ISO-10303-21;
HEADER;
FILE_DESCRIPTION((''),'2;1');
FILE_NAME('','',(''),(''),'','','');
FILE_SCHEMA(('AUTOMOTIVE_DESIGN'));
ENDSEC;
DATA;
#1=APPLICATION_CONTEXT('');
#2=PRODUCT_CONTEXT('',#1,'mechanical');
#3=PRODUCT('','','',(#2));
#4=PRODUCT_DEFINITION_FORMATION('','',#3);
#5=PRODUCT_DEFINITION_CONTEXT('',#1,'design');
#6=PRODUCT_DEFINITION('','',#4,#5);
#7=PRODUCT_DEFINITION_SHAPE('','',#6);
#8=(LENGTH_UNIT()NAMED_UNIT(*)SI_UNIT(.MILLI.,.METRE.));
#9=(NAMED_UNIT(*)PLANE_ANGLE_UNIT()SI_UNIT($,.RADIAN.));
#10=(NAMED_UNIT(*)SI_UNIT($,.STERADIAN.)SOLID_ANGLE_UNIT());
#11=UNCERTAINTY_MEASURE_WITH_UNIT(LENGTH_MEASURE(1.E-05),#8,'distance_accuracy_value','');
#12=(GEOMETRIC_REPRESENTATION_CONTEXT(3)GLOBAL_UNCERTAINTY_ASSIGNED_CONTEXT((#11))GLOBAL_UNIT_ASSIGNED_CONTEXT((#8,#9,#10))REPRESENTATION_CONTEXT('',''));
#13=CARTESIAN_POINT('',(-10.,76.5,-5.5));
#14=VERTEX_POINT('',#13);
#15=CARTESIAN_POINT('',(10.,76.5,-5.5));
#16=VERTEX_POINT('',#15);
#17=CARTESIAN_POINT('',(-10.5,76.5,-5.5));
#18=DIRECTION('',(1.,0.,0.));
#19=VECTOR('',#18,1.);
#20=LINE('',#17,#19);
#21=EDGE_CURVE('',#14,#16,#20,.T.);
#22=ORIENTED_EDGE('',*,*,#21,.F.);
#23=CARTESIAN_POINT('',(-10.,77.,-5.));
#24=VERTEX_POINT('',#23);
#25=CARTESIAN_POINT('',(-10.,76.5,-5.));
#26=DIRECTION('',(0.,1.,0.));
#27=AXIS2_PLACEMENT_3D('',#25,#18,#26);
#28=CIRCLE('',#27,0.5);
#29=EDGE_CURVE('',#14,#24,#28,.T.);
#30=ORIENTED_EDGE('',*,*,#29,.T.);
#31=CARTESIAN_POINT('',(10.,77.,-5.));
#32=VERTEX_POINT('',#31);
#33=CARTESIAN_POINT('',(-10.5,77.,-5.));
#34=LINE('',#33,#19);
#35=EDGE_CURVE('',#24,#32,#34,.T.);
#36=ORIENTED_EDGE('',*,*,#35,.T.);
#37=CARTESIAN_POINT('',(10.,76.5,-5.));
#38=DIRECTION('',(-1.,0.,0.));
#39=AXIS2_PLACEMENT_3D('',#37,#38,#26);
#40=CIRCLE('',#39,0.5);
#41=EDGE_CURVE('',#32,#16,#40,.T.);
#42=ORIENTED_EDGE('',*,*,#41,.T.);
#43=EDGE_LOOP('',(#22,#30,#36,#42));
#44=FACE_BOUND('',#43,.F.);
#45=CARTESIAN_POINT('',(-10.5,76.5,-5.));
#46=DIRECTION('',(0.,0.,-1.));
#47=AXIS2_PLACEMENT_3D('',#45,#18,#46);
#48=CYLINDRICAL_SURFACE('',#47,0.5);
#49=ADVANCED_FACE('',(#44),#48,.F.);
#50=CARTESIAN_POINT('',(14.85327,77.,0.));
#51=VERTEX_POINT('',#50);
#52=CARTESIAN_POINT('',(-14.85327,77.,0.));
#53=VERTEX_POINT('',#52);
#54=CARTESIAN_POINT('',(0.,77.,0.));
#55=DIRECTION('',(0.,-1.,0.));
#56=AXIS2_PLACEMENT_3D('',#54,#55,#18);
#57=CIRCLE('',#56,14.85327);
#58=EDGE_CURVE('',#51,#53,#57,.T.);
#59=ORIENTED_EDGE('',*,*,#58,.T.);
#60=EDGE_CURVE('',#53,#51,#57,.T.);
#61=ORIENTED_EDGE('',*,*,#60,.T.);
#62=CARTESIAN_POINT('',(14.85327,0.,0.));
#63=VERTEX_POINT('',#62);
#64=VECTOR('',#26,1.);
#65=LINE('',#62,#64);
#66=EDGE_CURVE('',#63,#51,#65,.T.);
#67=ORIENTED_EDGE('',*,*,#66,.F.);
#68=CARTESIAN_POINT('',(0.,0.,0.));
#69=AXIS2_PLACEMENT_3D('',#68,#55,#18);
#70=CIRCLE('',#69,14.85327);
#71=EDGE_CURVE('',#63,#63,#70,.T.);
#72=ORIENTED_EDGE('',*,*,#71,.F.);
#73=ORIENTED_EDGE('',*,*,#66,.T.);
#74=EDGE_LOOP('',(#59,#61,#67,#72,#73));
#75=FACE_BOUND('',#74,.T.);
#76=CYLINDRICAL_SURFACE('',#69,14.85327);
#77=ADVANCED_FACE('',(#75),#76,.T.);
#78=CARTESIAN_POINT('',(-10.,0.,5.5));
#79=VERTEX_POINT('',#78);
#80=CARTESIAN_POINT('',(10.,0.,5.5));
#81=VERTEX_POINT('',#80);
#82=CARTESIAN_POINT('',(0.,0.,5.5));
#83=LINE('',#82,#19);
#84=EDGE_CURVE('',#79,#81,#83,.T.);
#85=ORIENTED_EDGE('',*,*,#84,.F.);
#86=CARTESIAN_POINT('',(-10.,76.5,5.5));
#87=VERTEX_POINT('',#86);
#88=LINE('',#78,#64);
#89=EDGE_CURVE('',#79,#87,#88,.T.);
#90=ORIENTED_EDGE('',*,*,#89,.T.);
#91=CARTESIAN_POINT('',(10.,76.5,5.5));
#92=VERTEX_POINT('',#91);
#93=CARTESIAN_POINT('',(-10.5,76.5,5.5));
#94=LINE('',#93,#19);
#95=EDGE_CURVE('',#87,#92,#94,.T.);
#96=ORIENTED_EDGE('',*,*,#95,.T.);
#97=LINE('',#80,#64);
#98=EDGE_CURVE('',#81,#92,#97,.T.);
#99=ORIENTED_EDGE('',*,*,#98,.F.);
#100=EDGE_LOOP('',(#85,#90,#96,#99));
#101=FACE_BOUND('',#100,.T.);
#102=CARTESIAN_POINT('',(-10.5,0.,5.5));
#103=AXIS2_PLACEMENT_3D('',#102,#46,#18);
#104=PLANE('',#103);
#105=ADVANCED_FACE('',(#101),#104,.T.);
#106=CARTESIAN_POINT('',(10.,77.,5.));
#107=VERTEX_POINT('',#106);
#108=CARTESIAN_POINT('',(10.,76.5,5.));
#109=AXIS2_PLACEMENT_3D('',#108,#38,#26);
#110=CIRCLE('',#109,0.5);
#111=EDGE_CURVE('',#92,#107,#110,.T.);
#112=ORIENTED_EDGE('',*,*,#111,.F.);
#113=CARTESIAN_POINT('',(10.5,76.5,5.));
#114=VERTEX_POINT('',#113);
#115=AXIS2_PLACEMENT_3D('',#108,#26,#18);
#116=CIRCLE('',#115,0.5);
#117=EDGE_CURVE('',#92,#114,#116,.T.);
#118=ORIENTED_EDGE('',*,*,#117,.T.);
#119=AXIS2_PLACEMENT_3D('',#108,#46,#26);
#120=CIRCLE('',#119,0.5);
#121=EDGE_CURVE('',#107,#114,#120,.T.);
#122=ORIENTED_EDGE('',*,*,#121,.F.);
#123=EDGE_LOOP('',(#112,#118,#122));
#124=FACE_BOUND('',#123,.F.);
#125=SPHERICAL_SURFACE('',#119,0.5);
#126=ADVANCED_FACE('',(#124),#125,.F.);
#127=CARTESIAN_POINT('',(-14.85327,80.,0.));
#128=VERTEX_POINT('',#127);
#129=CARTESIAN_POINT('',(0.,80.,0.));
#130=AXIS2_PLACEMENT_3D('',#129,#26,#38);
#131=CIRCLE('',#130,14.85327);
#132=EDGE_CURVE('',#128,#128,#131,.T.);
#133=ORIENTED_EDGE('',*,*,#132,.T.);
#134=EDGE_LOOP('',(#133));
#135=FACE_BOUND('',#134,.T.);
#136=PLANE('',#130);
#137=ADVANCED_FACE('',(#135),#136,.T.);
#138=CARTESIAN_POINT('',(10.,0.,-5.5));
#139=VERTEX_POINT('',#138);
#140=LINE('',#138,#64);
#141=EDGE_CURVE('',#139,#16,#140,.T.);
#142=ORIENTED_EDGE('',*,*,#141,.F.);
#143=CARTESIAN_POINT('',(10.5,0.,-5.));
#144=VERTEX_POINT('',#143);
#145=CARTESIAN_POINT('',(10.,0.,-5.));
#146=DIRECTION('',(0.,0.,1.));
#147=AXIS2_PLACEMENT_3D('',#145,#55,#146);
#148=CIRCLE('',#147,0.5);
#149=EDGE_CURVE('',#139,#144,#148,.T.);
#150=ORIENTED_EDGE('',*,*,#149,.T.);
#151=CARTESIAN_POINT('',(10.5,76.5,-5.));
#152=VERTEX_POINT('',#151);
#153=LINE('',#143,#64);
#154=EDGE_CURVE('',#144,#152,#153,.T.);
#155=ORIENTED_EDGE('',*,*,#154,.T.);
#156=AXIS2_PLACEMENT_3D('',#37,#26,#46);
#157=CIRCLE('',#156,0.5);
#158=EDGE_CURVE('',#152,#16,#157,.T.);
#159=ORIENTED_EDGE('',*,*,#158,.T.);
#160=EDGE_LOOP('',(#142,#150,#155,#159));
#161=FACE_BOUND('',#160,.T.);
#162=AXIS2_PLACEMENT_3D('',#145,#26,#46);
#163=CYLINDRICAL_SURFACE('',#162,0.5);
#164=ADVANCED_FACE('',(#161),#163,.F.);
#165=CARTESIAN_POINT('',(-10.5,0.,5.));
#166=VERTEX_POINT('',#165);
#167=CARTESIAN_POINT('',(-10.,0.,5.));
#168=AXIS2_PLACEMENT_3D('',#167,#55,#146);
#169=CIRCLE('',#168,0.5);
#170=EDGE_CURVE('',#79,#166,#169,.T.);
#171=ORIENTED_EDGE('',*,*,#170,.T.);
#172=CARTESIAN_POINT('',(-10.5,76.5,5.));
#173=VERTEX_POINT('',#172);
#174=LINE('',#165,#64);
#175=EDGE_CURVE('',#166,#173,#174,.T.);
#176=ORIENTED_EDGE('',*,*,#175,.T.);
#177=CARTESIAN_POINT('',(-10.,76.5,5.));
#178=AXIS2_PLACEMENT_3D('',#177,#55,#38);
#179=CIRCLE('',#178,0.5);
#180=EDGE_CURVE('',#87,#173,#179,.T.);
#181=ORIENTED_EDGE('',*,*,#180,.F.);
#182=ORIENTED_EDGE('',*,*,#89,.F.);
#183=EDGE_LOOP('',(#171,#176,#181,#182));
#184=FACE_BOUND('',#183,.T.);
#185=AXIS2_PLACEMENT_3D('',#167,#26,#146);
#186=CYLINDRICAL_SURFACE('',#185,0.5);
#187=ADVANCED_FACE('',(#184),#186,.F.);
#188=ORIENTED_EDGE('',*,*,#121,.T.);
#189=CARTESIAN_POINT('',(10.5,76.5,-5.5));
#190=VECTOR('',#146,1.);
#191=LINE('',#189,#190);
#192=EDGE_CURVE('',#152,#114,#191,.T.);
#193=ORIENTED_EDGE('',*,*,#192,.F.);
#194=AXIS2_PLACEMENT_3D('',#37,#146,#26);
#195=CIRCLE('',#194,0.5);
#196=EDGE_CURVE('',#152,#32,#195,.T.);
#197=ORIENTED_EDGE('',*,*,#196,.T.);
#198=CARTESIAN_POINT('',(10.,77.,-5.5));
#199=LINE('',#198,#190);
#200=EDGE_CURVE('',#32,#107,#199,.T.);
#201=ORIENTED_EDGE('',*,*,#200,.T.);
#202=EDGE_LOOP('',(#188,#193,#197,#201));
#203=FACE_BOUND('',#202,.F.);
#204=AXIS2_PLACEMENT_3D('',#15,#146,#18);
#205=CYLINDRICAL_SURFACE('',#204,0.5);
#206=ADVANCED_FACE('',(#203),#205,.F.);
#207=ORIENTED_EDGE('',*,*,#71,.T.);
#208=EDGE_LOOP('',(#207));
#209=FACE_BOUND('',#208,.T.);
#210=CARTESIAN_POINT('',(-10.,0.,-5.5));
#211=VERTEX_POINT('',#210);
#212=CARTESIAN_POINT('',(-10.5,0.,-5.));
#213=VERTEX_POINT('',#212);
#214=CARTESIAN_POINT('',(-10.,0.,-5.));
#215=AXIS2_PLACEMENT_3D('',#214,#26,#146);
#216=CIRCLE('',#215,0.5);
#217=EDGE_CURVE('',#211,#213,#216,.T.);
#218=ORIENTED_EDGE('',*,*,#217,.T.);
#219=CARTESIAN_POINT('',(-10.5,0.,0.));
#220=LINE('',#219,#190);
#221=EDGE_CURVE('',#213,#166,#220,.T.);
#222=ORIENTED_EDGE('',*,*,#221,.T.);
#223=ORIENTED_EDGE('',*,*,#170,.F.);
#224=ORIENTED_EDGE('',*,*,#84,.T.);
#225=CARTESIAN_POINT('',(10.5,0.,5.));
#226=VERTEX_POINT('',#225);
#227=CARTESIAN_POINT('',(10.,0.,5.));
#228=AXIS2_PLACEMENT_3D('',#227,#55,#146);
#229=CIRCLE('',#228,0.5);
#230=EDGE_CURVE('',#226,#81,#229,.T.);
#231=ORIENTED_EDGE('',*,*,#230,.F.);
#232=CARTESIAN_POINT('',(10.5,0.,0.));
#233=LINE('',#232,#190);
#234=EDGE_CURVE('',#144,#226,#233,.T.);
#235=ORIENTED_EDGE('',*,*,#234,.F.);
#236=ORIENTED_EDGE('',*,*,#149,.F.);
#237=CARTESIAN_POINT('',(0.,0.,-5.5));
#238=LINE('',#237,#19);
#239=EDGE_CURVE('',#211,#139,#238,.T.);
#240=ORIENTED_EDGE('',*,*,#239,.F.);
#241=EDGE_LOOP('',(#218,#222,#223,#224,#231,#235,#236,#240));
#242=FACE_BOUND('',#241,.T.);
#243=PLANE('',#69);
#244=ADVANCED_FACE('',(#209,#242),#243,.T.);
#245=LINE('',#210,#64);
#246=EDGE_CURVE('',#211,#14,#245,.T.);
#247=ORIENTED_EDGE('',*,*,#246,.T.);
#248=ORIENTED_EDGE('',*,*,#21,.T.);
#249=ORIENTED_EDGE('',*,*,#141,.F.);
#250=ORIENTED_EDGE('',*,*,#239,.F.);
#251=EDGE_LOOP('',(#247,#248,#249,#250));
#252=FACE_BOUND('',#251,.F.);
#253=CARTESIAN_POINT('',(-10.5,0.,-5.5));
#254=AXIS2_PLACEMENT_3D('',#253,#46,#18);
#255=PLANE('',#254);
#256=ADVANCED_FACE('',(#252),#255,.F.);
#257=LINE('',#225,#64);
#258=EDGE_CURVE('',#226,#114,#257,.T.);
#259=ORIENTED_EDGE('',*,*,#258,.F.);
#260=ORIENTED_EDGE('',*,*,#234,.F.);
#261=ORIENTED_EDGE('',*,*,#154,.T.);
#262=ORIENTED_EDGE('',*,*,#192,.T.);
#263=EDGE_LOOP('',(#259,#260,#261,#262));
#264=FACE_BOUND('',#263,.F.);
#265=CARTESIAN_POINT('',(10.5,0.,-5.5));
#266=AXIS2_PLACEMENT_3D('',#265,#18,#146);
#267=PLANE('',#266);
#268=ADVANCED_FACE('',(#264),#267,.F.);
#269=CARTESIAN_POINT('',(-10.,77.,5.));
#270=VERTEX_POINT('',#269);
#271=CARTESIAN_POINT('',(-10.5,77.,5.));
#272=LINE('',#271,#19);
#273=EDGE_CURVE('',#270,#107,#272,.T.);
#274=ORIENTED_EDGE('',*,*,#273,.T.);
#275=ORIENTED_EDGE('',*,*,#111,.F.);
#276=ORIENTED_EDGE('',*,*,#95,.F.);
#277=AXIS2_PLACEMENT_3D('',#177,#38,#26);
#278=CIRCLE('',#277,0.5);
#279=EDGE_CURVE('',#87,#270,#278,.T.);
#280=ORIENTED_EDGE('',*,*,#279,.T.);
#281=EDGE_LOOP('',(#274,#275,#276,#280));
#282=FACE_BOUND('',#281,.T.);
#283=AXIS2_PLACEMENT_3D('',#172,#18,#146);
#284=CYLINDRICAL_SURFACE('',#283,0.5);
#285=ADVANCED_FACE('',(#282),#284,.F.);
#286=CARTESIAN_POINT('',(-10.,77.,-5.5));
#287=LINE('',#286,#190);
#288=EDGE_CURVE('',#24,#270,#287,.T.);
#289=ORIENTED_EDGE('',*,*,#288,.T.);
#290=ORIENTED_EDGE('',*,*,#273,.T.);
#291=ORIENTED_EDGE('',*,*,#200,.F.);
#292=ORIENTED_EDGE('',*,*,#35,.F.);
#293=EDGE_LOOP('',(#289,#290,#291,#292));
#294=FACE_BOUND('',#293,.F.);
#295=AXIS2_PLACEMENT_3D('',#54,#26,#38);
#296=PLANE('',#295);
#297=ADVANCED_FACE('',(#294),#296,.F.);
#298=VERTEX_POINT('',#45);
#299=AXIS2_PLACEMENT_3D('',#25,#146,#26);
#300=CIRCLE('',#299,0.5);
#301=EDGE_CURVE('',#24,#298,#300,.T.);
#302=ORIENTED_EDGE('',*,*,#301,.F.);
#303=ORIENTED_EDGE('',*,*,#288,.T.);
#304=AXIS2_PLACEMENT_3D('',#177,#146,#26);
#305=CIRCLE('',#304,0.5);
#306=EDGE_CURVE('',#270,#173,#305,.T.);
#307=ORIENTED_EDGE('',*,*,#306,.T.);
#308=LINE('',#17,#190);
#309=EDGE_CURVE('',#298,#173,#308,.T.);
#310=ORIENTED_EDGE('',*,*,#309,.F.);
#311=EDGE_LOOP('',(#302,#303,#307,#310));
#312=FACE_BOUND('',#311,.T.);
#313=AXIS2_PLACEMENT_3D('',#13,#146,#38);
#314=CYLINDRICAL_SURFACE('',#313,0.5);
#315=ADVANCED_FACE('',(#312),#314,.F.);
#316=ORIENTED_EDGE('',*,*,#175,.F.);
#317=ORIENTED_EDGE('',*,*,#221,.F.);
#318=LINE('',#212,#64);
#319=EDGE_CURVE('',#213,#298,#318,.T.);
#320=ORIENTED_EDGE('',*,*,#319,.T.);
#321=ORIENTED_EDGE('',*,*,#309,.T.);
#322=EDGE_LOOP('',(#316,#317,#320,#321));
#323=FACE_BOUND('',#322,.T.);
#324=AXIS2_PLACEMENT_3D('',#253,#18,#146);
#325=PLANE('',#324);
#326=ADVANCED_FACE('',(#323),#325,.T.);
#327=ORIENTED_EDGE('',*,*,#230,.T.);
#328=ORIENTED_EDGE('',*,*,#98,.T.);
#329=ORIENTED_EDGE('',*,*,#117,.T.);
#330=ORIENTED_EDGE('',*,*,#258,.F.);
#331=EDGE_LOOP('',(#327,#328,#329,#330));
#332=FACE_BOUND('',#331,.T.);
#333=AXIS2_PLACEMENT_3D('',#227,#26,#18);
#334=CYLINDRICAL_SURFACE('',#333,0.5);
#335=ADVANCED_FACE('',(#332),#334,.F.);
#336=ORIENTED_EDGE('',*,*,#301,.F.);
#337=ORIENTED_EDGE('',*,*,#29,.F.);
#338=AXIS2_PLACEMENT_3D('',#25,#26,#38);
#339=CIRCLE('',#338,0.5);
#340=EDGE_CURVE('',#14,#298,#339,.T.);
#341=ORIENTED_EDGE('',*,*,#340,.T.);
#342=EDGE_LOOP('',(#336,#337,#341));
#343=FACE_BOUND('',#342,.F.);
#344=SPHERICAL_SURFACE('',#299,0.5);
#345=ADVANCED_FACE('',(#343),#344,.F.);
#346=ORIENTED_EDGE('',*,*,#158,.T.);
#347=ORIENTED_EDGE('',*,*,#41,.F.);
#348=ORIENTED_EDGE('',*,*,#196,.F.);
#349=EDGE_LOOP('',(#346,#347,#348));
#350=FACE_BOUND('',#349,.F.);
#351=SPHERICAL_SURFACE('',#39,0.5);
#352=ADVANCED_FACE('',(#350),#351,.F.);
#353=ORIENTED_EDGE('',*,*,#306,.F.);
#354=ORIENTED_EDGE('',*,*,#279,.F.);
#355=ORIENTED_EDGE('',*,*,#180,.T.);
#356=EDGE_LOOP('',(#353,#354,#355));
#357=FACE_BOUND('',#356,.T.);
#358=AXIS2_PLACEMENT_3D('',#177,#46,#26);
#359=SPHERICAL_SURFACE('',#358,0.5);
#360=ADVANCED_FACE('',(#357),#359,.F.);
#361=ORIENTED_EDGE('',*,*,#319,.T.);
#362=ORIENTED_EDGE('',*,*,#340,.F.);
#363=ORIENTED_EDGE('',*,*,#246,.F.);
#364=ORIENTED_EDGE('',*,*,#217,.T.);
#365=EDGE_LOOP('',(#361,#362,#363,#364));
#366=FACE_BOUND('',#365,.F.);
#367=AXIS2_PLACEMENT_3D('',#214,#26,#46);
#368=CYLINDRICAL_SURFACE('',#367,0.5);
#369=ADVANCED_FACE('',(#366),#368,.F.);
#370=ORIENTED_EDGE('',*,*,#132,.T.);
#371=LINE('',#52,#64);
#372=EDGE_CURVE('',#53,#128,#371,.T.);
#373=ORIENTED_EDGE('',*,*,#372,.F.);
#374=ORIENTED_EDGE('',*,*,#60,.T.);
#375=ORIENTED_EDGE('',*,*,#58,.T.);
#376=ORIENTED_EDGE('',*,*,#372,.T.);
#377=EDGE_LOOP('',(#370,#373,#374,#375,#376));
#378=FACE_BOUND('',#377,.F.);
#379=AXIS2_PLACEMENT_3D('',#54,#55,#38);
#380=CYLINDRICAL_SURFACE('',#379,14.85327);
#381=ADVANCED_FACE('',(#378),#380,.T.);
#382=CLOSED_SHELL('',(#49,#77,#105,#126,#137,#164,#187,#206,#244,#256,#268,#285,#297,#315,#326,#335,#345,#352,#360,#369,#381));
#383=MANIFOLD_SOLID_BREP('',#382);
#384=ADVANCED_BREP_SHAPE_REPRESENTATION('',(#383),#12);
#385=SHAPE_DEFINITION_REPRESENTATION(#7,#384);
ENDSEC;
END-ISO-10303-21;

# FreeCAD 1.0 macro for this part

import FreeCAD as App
import Part
import Sketcher
Q = App.Units.Quantity


def edges_at(feature, points):
    """Names of the edges that pass closest to the given points."""
    edges = feature.Shape.Edges
    near = lambda p: min(range(len(edges)), key=lambda i: edges[i].distToShape(Part.Vertex(*p))[0])
    return sorted({f"Edge{near(p) + 1}" for p in points})

doc = App.newDocument("Part")
body = doc.addObject("PartDesign::Body", "Body")

# Sketch on XZ plane
sketch1 = body.newObject("Sketcher::SketchObject", "Sketch")
sketch1.AttachmentSupport = (doc.getObject("XZ_Plane"), [""])
sketch1.MapMode = "FlatFace"
sketch1.addGeometry(Part.Circle(App.Vector(0, 0, 0), App.Vector(0, 0, 1), 15), False)
sketch1.addGeometry(Part.LineSegment(App.Vector(10, -6, 0), App.Vector(-10, -6, 0)), False)
sketch1.addGeometry(Part.LineSegment(App.Vector(-10, -6, 0), App.Vector(-10, 6, 0)), False)
sketch1.addGeometry(Part.LineSegment(App.Vector(-10, 6, 0), App.Vector(10, 6, 0)), False)
sketch1.addGeometry(Part.LineSegment(App.Vector(10, 6, 0), App.Vector(10, -6, 0)), False)
sketch1.addConstraint(Sketcher.Constraint("Coincident", 1, 2, 2, 1))
sketch1.addConstraint(Sketcher.Constraint("Coincident", 2, 2, 3, 1))
sketch1.addConstraint(Sketcher.Constraint("Coincident", 3, 2, 4, 1))
sketch1.addConstraint(Sketcher.Constraint("Coincident", 4, 2, 1, 1))
sketch1.addConstraint(Sketcher.Constraint("Horizontal", 1))
sketch1.addConstraint(Sketcher.Constraint("Vertical", 2))
sketch1.addConstraint(Sketcher.Constraint("Horizontal", 3))
sketch1.addConstraint(Sketcher.Constraint("Vertical", 4))
sketch1.addConstraint(Sketcher.Constraint("Coincident", 0, 3, -1, 1))
sketch1.addConstraint(Sketcher.Constraint("Symmetric", 1, 2, 3, 2, -1, 1))
sketch1.addConstraint(Sketcher.Constraint("DistanceX", 1, 2, 1, 1, Q("21 mm")))
sketch1.addConstraint(Sketcher.Constraint("DistanceY", 2, 1, 2, 2, Q("11 mm")))
sketch1.addConstraint(Sketcher.Constraint("Diameter", 0, Q("29.706539 mm")))
pad1 = body.newObject("PartDesign::Pad", "Pad")
pad1.Profile = sketch1
pad1.Length = 77
pad1.Reversed = True

# Sketch on XZ plane
sketch2 = body.newObject("Sketcher::SketchObject", "Sketch001")
sketch2.AttachmentSupport = (doc.getObject("XZ_Plane"), [""])
sketch2.MapMode = "FlatFace"
sketch2.AttachmentOffset = App.Placement(App.Vector(0, 0, -77), App.Rotation())
sketch2.addGeometry(Part.Circle(App.Vector(0, 0, 0), App.Vector(0, 0, 1), 15), False)
sketch2.addConstraint(Sketcher.Constraint("Coincident", 0, 3, -1, 1))
sketch2.addConstraint(Sketcher.Constraint("Diameter", 0, Q("29.706539 mm")))
pad2 = body.newObject("PartDesign::Pad", "Pad001")
pad2.Profile = sketch2
pad2.Length = 3
pad2.Reversed = True
doc.recompute()

fillet = body.newObject("PartDesign::Fillet", "Fillet")
fillet.Base = (pad2, edges_at(pad2, [
    (-10.5, 77, 0),
    (0, 77, -5.5),
    (10.5, 77, 0),
    (0, 77, 5.5),
    (-10.5, 38.5, -5.5),
    (-10.5, 38.5, 5.5),
    (10.5, 38.5, 5.5),
    (10.5, 38.5, -5.5),
]))
fillet.Radius = 0.5

doc.recompute()
